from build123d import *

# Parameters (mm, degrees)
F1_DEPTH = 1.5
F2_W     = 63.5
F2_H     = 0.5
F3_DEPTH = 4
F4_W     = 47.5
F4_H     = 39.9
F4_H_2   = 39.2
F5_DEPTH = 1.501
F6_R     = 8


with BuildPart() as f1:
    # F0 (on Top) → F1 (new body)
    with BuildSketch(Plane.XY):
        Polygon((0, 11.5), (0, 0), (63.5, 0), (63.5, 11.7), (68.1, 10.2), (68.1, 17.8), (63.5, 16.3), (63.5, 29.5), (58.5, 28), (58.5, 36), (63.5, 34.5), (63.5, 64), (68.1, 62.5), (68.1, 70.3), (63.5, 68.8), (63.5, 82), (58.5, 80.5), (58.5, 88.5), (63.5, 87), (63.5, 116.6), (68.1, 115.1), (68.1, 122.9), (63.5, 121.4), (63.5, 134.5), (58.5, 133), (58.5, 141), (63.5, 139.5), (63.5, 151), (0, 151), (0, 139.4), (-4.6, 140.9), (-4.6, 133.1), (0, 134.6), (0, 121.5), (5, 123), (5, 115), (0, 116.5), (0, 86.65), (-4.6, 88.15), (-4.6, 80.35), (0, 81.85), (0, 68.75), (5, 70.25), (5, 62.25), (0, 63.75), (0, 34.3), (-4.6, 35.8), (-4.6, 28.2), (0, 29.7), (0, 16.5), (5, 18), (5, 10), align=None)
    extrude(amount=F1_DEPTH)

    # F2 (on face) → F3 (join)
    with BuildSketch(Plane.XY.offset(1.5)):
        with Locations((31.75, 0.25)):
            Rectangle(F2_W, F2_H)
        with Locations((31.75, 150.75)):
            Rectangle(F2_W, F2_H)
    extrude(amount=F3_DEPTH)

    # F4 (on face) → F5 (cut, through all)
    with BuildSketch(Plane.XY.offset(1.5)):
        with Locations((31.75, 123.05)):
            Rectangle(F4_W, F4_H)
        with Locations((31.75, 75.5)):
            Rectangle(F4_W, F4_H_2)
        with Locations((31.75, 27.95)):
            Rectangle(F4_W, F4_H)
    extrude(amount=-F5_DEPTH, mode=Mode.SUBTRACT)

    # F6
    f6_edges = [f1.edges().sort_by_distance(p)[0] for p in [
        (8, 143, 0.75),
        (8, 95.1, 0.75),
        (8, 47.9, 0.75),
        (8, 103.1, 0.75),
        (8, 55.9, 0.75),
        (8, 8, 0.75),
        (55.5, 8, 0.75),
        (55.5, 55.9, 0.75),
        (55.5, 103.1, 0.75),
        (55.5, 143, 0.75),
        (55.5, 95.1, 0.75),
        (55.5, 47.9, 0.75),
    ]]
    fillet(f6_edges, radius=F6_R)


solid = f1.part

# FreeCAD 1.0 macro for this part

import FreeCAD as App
import Part
import Sketcher
from FreeCAD import Vector
Q = App.Units.Quantity


def edges_at(feature, points):
    """Names of the edges that pass closest to the given points."""
    edges = feature.Shape.Edges
    near = lambda p: min(range(len(edges)), key=lambda i: edges[i].distToShape(Part.Vertex(*p))[0])
    return sorted({f"Edge{near(p) + 1}" for p in points})


def add_polygon(sketch, points):
    """Adds a closed chain of lines whose ends are joined by coincident constraints."""
    first, n = sketch.GeometryCount, len(points)
    for a, b in zip(points, points[1:] + points[:1]):
        sketch.addGeometry(Part.LineSegment(App.Vector(*a, 0), App.Vector(*b, 0)), False)
    for i in range(n):
        sketch.addConstraint(Sketcher.Constraint("Coincident", first + i, 2, first + (i + 1) % n, 1))

doc = App.newDocument("Part")
body = doc.addObject("PartDesign::Body", "Body")

# Sketch on XY plane
sketch1 = body.newObject("Sketcher::SketchObject", "Sketch")
sketch1.AttachmentSupport = (doc.getObject("XY_Plane"), [""])
sketch1.MapMode = "FlatFace"
add_polygon(sketch1, [(0, 11.5), (0, 0), (63.5, 0), (63.5, 11.7), (68.1, 10.2), (68.1, 17.8), (63.5, 16.3), (63.5, 29.5), (58.5, 28), (58.5, 36), (63.5, 34.5), (63.5, 64), (68.1, 62.5), (68.1, 70.3), (63.5, 68.8), (63.5, 82), (58.5, 80.5), (58.5, 88.5), (63.5, 87), (63.5, 116.6), (68.1, 115.1), (68.1, 122.9), (63.5, 121.4), (63.5, 134.5), (58.5, 133), (58.5, 141), (63.5, 139.5), (63.5, 151), (0, 151), (0, 139.4), (-4.6, 140.9), (-4.6, 133.1), (0, 134.6), (0, 121.5), (5, 123), (5, 115), (0, 116.5), (0, 86.7), (-4.6, 88.2), (-4.6, 80.3), (0, 81.8), (0, 68.8), (5, 70.2), (5, 62.2), (0, 63.8), (0, 34.3), (-4.6, 35.8), (-4.6, 28.2), (0, 29.7), (0, 16.5), (5, 18), (5, 10)])  # lines 0-51
sketch1.addConstraint(Sketcher.Constraint("Vertical", 0))
sketch1.addConstraint(Sketcher.Constraint("Horizontal", 1))
sketch1.addConstraint(Sketcher.Constraint("Vertical", 2))
sketch1.addConstraint(Sketcher.Constraint("Vertical", 4))
sketch1.addConstraint(Sketcher.Constraint("Vertical", 6))
sketch1.addConstraint(Sketcher.Constraint("Vertical", 8))
sketch1.addConstraint(Sketcher.Constraint("Vertical", 10))
sketch1.addConstraint(Sketcher.Constraint("Vertical", 12))
sketch1.addConstraint(Sketcher.Constraint("Vertical", 14))
sketch1.addConstraint(Sketcher.Constraint("Vertical", 16))
sketch1.addConstraint(Sketcher.Constraint("Vertical", 18))
sketch1.addConstraint(Sketcher.Constraint("Vertical", 20))
sketch1.addConstraint(Sketcher.Constraint("Vertical", 22))
sketch1.addConstraint(Sketcher.Constraint("Vertical", 24))
sketch1.addConstraint(Sketcher.Constraint("Vertical", 26))
sketch1.addConstraint(Sketcher.Constraint("Horizontal", 27))
sketch1.addConstraint(Sketcher.Constraint("Vertical", 28))
sketch1.addConstraint(Sketcher.Constraint("Vertical", 30))
sketch1.addConstraint(Sketcher.Constraint("Vertical", 32))
sketch1.addConstraint(Sketcher.Constraint("Vertical", 34))
sketch1.addConstraint(Sketcher.Constraint("Vertical", 36))
sketch1.addConstraint(Sketcher.Constraint("Vertical", 38))
sketch1.addConstraint(Sketcher.Constraint("Vertical", 40))
sketch1.addConstraint(Sketcher.Constraint("Vertical", 42))
sketch1.addConstraint(Sketcher.Constraint("Vertical", 44))
sketch1.addConstraint(Sketcher.Constraint("Vertical", 46))
sketch1.addConstraint(Sketcher.Constraint("Vertical", 48))
sketch1.addConstraint(Sketcher.Constraint("Vertical", 50))
sketch1.addConstraint(Sketcher.Constraint("Coincident", 0, 2, -1, 1))
sketch1.addConstraint(Sketcher.Constraint("PointOnObject", 27, 2, -2))
sketch1.addConstraint(Sketcher.Constraint("PointOnObject", 31, 2, -2))
sketch1.addConstraint(Sketcher.Constraint("PointOnObject", 35, 2, -2))
sketch1.addConstraint(Sketcher.Constraint("PointOnObject", 39, 2, -2))
sketch1.addConstraint(Sketcher.Constraint("PointOnObject", 43, 2, -2))
sketch1.addConstraint(Sketcher.Constraint("PointOnObject", 47, 2, -2))
sketch1.addConstraint(Sketcher.Constraint("Parallel", 3, 11))
sketch1.addConstraint(Sketcher.Constraint("Parallel", 5, 13))
sketch1.addConstraint(Sketcher.Constraint("Parallel", 7, 15))
sketch1.addConstraint(Sketcher.Constraint("Parallel", 9, 17))
sketch1.addConstraint(Sketcher.Constraint("Parallel", 11, 19))
sketch1.addConstraint(Sketcher.Constraint("Parallel", 13, 21))
sketch1.addConstraint(Sketcher.Constraint("Parallel", 15, 23))
sketch1.addConstraint(Sketcher.Constraint("Parallel", 17, 25))
sketch1.addConstraint(Sketcher.Constraint("Parallel", 19, 29))
sketch1.addConstraint(Sketcher.Constraint("Parallel", 21, 31))
sketch1.addConstraint(Sketcher.Constraint("Parallel", 23, 33))
sketch1.addConstraint(Sketcher.Constraint("Parallel", 25, 35))
sketch1.addConstraint(Sketcher.Constraint("Parallel", 29, 37))
sketch1.addConstraint(Sketcher.Constraint("Parallel", 31, 39))
sketch1.addConstraint(Sketcher.Constraint("Parallel", 33, 41))
sketch1.addConstraint(Sketcher.Constraint("Parallel", 35, 43))
sketch1.addConstraint(Sketcher.Constraint("Parallel", 37, 45))
sketch1.addConstraint(Sketcher.Constraint("Parallel", 39, 47))
sketch1.addConstraint(Sketcher.Constraint("Parallel", 41, 49))
sketch1.addConstraint(Sketcher.Constraint("Parallel", 43, 51))
sketch1.addConstraint(Sketcher.Constraint("Vertical", 2, 2, 5, 2))
sketch1.addConstraint(Sketcher.Constraint("Vertical", 6, 2, 9, 2))
sketch1.addConstraint(Sketcher.Constraint("Vertical", 4, 2, 11, 2))
sketch1.addConstraint(Sketcher.Constraint("Vertical", 10, 2, 13, 2))
sketch1.addConstraint(Sketcher.Constraint("Vertical", 8, 2, 15, 2))
sketch1.addConstraint(Sketcher.Constraint("Vertical", 14, 2, 17, 2))
sketch1.addConstraint(Sketcher.Constraint("Vertical", 12, 2, 19, 2))
sketch1.addConstraint(Sketcher.Constraint("Vertical", 18, 2, 21, 2))
sketch1.addConstraint(Sketcher.Constraint("Vertical", 16, 2, 23, 2))
sketch1.addConstraint(Sketcher.Constraint("Vertical", 22, 2, 25, 2))
sketch1.addConstraint(Sketcher.Constraint("Vertical", 30, 2, 37, 2))
sketch1.addConstraint(Sketcher.Constraint("Vertical", 34, 2, 41, 2))
sketch1.addConstraint(Sketcher.Constraint("Vertical", 38, 2, 45, 2))
sketch1.addConstraint(Sketcher.Constraint("Vertical", 42, 2, 49, 2))
sketch1.addConstraint(Sketcher.Constraint("Equal", 6, 14))
sketch1.addConstraint(Sketcher.Constraint("Equal", 8, 16))
sketch1.addConstraint(Sketcher.Constraint("Equal", 12, 20))
sketch1.addConstraint(Sketcher.Constraint("Equal", 16, 24))
sketch1.addConstraint(Sketcher.Constraint("Equal", 0, 26))
sketch1.addConstraint(Sketcher.Constraint("Equal", 20, 30))
sketch1.addConstraint(Sketcher.Constraint("Equal", 22, 32))
sketch1.addConstraint(Sketcher.Constraint("Equal", 24, 34))
sketch1.addConstraint(Sketcher.Constraint("Equal", 30, 38))
sketch1.addConstraint(Sketcher.Constraint("Equal", 32, 40))
sketch1.addConstraint(Sketcher.Constraint("Equal", 34, 42))
sketch1.addConstraint(Sketcher.Constraint("Equal", 4, 46))
sketch1.addConstraint(Sketcher.Constraint("Equal", 14, 48))
sketch1.addConstraint(Sketcher.Constraint("Equal", 42, 50))
sketch1.addConstraint(Sketcher.Constraint("Equal", 3, 5))
sketch1.addConstraint(Sketcher.Constraint("Equal", 7, 9))
sketch1.addConstraint(Sketcher.Constraint("Equal", 21, 29))
sketch1.addConstraint(Sketcher.Constraint("Equal", 25, 33))
sketch1.addConstraint(Sketcher.Constraint("DistanceY", 8, 1, 8, 2, Q("8 mm")))
sketch1.addConstraint(Sketcher.Constraint("DistanceX", 1, 1, 1, 2, Q("63.5 mm")))
sketch1.addConstraint(Sketcher.Constraint("DistanceY", 0, 2, 0, 1, Q("11.5 mm")))
sketch1.addConstraint(Sketcher.Constraint("DistanceY", 2, 1, 2, 2, Q("11.7 mm")))
sketch1.addConstraint(Sketcher.Constraint("DistanceY", 4, 1, 4, 2, Q("7.6 mm")))
sketch1.addConstraint(Sketcher.Constraint("DistanceY", 6, 1, 6, 2, Q("13.2 mm")))
sketch1.addConstraint(Sketcher.Constraint("DistanceY", 10, 1, 10, 2, Q("29.5 mm")))
sketch1.addConstraint(Sketcher.Constraint("DistanceY", 12, 1, 12, 2, Q("7.8 mm")))
sketch1.addConstraint(Sketcher.Constraint("DistanceY", 18, 1, 18, 2, Q("29.6 mm")))
sketch1.addConstraint(Sketcher.Constraint("DistanceY", 22, 1, 22, 2, Q("13.1 mm")))
sketch1.addConstraint(Sketcher.Constraint("DistanceY", 28, 2, 28, 1, Q("11.6 mm")))
sketch1.addConstraint(Sketcher.Constraint("DistanceY", -1, 1, 7, 2, Q("28 mm")))
sketch1.addConstraint(Sketcher.Constraint("DistanceY", -1, 1, 10, 2, Q("64 mm")))
sketch1.addConstraint(Sketcher.Constraint("DistanceX", -1, 1, 33, 2, Q("5 mm")))
sketch1.addConstraint(Sketcher.Constraint("DistanceY", 36, 2, 36, 1, Q("29.85 mm")))
sketch1.addConstraint(Sketcher.Constraint("DistanceX", -1, 1, 3, 2, Q("68.1 mm")))
pad1 = body.newObject("PartDesign::Pad", "Pad")
pad1.Profile = sketch1
pad1.Length = 1.5

# Sketch on XY plane
sketch2 = body.newObject("Sketcher::SketchObject", "Sketch001")
sketch2.AttachmentSupport = (doc.getObject("XY_Plane"), [""])
sketch2.MapMode = "FlatFace"
sketch2.AttachmentOffset = App.Placement(Vector(0, 0, 1.5), App.Rotation())
add_polygon(sketch2, [(0, 0.5), (0, 0), (63.5, 0), (63.5, 0.5)])  # lines 0-3
add_polygon(sketch2, [(0, 151), (0, 150.5), (63.5, 150.5), (63.5, 151)])  # lines 4-7
sketch2.addConstraint(Sketcher.Constraint("Vertical", 0))
sketch2.addConstraint(Sketcher.Constraint("Horizontal", 1))
sketch2.addConstraint(Sketcher.Constraint("Vertical", 2))
sketch2.addConstraint(Sketcher.Constraint("Horizontal", 3))
sketch2.addConstraint(Sketcher.Constraint("Vertical", 4))
sketch2.addConstraint(Sketcher.Constraint("Horizontal", 5))
sketch2.addConstraint(Sketcher.Constraint("Vertical", 6))
sketch2.addConstraint(Sketcher.Constraint("Horizontal", 7))
sketch2.addConstraint(Sketcher.Constraint("Coincident", 0, 2, -1, 1))
sketch2.addConstraint(Sketcher.Constraint("PointOnObject", 4, 2, -2))
sketch2.addConstraint(Sketcher.Constraint("Vertical", 2, 2, 5, 2))
sketch2.addConstraint(Sketcher.Constraint("Equal", 2, 4))
sketch2.addConstraint(Sketcher.Constraint("DistanceX", 1, 1, 1, 2, Q("63.5 mm")))
sketch2.addConstraint(Sketcher.Constraint("DistanceY", 0, 2, 0, 1, Q("0.5 mm")))
sketch2.addConstraint(Sketcher.Constraint("DistanceY", -1, 1, 6, 2, Q("151 mm")))
pad2 = body.newObject("PartDesign::Pad", "Pad001")
pad2.Profile = sketch2
pad2.Length = 4

# Sketch on XY plane
sketch3 = body.newObject("Sketcher::SketchObject", "Sketch002")
sketch3.AttachmentSupport = (doc.getObject("XY_Plane"), [""])
sketch3.MapMode = "FlatFace"
sketch3.AttachmentOffset = App.Placement(Vector(0, 0, 1.5), App.Rotation())
add_polygon(sketch3, [(8, 143), (8, 103), (56, 103), (56, 143)])  # lines 0-3
add_polygon(sketch3, [(8, 95), (8, 56), (56, 56), (56, 95)])  # lines 4-7
add_polygon(sketch3, [(8, 48), (8, 8), (56, 8), (56, 48)])  # lines 8-11
sketch3.addConstraint(Sketcher.Constraint("Vertical", 0))
sketch3.addConstraint(Sketcher.Constraint("Horizontal", 1))
sketch3.addConstraint(Sketcher.Constraint("Vertical", 2))
sketch3.addConstraint(Sketcher.Constraint("Horizontal", 3))
sketch3.addConstraint(Sketcher.Constraint("Vertical", 4))
sketch3.addConstraint(Sketcher.Constraint("Horizontal", 5))
sketch3.addConstraint(Sketcher.Constraint("Vertical", 6))
sketch3.addConstraint(Sketcher.Constraint("Horizontal", 7))
sketch3.addConstraint(Sketcher.Constraint("Vertical", 8))
sketch3.addConstraint(Sketcher.Constraint("Horizontal", 9))
sketch3.addConstraint(Sketcher.Constraint("Vertical", 10))
sketch3.addConstraint(Sketcher.Constraint("Horizontal", 11))
sketch3.addConstraint(Sketcher.Constraint("Vertical", 3, 2, 4, 2))
sketch3.addConstraint(Sketcher.Constraint("Vertical", 2, 2, 5, 2))
sketch3.addConstraint(Sketcher.Constraint("Vertical", 7, 2, 8, 2))
sketch3.addConstraint(Sketcher.Constraint("Vertical", 6, 2, 9, 2))
sketch3.addConstraint(Sketcher.Constraint("Equal", 2, 8))
sketch3.addConstraint(Sketcher.Constraint("DistanceX", 1, 1, 1, 2, Q("47.5 mm")))
sketch3.addConstraint(Sketcher.Constraint("DistanceY", 0, 2, 0, 1, Q("39.9 mm")))
sketch3.addConstraint(Sketcher.Constraint("DistanceY", 4, 2, 4, 1, Q("39.2 mm")))
sketch3.addConstraint(Sketcher.Constraint("DistanceX", -1, 1, 0, 2, Q("8 mm")))
sketch3.addConstraint(Sketcher.Constraint("DistanceY", -1, 1, 2, 2, Q("143 mm")))
sketch3.addConstraint(Sketcher.Constraint("DistanceY", -1, 1, 8, 2, Q("8 mm")))
sketch3.addConstraint(Sketcher.Constraint("DistanceY", 6, 2, 1, 2, Q("8 mm")))
pocket1 = body.newObject("PartDesign::Pocket", "Pocket")
pocket1.Profile = sketch3
pocket1.Type = "ThroughAll"
doc.recompute()

fillet = body.newObject("PartDesign::Fillet", "Fillet")
fillet.Base = (pocket1, edges_at(pocket1, [
    (8, 143, 0.75),
    (8, 95.1, 0.75),
    (8, 47.9, 0.75),
    (8, 103.1, 0.75),
    (8, 55.9, 0.75),
    (8, 8, 0.75),
    (55.5, 8, 0.75),
    (55.5, 55.9, 0.75),
    (55.5, 103.1, 0.75),
    (55.5, 143, 0.75),
    (55.5, 95.1, 0.75),
    (55.5, 47.9, 0.75),
]))
fillet.Radius = 8

doc.recompute()
